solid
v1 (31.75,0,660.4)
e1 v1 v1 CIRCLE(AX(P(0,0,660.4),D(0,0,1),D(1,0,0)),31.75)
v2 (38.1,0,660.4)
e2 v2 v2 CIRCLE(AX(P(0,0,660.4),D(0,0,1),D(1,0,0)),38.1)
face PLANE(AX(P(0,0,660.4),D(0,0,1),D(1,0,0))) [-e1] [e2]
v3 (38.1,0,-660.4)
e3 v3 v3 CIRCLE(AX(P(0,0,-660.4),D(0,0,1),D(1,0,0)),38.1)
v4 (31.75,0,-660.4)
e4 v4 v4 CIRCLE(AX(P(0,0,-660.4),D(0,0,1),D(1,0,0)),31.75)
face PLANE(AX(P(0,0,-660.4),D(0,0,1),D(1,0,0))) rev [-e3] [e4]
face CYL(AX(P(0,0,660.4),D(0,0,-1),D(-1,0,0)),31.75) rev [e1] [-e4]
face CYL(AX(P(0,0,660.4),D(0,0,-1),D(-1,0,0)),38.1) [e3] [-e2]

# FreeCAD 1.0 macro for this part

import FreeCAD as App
import Part
import Sketcher
Q = App.Units.Quantity

doc = App.newDocument("Part")
body = doc.addObject("PartDesign::Body", "Body")

sketch1 = body.newObject("Sketcher::SketchObject", "Sketch")
sketch1.AttachmentSupport = (doc.getObject("XY_Plane"), [""])
sketch1.MapMode = "FlatFace"
sketch1.addGeometry([
    Part.Circle(App.Vector(0, 0, 0), App.Vector(0, 0, 1), 38.1),
    Part.Circle(App.Vector(0, 0, 0), App.Vector(0, 0, 1), 31.75),
], False)
sketch1.addConstraint([
    Sketcher.Constraint("Coincident", 0, 3, -1, 1),
    Sketcher.Constraint("Coincident", 1, 3, -1, 1),
    Sketcher.Constraint("Diameter", 0, Q("3 in")),
    Sketcher.Constraint("Diameter", 1, Q("2.5 in")),
])
pad1 = body.newObject("PartDesign::Pad", "Pad")
pad1.Profile = sketch1
pad1.Length = Q("52 in")
pad1.Midplane = True

doc.recompute()
